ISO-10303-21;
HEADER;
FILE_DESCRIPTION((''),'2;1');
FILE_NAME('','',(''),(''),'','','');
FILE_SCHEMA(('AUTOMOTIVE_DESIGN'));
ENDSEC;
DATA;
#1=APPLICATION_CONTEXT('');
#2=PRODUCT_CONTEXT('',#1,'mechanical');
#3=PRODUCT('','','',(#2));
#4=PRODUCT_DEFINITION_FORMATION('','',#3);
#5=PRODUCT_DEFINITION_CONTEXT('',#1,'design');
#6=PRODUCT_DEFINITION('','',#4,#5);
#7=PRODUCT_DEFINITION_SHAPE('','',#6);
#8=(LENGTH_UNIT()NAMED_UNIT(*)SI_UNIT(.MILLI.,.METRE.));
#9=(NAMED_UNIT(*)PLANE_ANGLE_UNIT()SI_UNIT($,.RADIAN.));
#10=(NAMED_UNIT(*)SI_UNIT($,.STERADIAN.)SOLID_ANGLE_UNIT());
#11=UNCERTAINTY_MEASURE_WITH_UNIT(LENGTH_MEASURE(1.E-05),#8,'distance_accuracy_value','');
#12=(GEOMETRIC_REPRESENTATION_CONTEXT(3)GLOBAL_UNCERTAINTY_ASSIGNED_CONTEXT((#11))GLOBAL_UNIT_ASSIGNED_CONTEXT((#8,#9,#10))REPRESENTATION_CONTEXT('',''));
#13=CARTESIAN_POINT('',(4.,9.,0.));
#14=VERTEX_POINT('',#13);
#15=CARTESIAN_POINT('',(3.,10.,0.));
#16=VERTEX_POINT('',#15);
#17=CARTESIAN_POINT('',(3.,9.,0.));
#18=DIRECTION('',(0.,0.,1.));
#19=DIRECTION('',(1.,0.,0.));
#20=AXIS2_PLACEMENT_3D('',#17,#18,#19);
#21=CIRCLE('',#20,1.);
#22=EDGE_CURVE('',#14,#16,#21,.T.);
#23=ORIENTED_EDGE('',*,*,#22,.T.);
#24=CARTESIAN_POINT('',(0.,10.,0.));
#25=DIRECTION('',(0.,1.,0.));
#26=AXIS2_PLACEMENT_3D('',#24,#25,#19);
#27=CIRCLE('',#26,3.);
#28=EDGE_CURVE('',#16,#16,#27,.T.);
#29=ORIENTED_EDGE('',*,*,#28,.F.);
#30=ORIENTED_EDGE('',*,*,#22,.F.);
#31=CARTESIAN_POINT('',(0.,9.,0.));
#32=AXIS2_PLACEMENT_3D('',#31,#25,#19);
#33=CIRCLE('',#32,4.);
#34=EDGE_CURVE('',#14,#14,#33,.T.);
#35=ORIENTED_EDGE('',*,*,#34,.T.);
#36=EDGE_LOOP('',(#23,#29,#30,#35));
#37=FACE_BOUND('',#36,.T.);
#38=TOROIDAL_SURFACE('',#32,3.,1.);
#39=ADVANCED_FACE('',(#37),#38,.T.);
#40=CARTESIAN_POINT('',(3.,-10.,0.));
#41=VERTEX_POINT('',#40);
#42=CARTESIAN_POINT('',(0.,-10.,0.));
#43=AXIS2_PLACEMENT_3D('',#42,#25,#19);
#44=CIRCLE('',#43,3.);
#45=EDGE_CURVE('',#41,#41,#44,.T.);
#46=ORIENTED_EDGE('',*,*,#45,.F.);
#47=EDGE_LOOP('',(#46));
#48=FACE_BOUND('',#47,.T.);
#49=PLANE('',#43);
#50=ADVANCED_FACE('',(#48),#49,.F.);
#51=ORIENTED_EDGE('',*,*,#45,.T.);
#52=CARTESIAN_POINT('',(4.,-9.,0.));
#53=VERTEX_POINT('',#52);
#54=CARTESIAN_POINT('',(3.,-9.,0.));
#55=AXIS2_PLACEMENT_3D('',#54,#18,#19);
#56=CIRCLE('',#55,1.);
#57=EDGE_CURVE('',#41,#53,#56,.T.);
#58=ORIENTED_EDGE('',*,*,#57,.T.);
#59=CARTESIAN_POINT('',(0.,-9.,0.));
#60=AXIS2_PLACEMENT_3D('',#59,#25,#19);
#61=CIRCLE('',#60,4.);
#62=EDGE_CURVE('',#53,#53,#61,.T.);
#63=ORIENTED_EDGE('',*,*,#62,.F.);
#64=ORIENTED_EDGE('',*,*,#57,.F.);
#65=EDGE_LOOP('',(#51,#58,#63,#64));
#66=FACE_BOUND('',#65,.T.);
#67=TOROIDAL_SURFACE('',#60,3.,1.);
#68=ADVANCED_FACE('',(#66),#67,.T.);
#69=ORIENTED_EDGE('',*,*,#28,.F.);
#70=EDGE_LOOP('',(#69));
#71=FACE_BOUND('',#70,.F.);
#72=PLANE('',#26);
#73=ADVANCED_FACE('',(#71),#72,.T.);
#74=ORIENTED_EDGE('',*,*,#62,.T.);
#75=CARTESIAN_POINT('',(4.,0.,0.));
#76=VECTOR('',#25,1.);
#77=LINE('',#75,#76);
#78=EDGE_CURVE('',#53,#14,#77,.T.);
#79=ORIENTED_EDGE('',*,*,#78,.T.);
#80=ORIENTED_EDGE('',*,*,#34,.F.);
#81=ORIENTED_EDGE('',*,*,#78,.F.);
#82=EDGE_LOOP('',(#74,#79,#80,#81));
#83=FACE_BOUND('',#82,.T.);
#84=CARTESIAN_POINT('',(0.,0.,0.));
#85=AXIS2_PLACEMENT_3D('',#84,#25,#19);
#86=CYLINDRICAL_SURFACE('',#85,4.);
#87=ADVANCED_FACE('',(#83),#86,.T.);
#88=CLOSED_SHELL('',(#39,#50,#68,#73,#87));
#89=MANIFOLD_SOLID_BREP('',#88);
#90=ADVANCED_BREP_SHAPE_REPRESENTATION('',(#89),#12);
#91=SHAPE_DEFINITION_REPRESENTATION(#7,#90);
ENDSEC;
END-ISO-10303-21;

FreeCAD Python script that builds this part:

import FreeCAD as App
import Part
import Sketcher
from FreeCAD import Vector


def edges_at(feature, points):
    """Names of the edges that pass closest to the given points."""
    edges = feature.Shape.Edges
    near = lambda p: min(range(len(edges)), key=lambda i: edges[i].distToShape(Part.Vertex(*p))[0])
    return sorted({f"Edge{near(p) + 1}" for p in points})


def add_polygon(sketch, points):
    """Adds a closed chain of lines whose ends are joined by coincident constraints."""
    first, n = sketch.GeometryCount, len(points)
    for a, b in zip(points, points[1:] + points[:1]):
        sketch.addGeometry(Part.LineSegment(App.Vector(*a, 0), App.Vector(*b, 0)), False)
    for i in range(n):
        sketch.addConstraint(Sketcher.Constraint("Coincident", first + i, 2, first + (i + 1) % n, 1))

doc = App.newDocument("Part")
body = doc.addObject("PartDesign::Body", "Body")

# Sketch on XY plane
sketch1 = doc.addObject("Sketcher::SketchObject", "Sketch")
body.addObject(sketch1)
sketch1.AttachmentSupport = (doc.XY_Plane, [""])
sketch1.MapMode = "FlatFace"
add_polygon(sketch1, [(0, 10), (0, -10), (4, -10), (4, 10)])  # lines 0-3
sketch1.addConstraint(Sketcher.Constraint("Vertical", 0))
sketch1.addConstraint(Sketcher.Constraint("Horizontal", 1))
sketch1.addConstraint(Sketcher.Constraint("Vertical", 2))
sketch1.addConstraint(Sketcher.Constraint("Horizontal", 3))
sketch1.addConstraint(Sketcher.Constraint("Symmetric", 0, 2, 3, 2, -1, 1))
sketch1.addConstraint(Sketcher.Constraint("DistanceX", 1, 1, 1, 2, 4.0))
sketch1.addConstraint(Sketcher.Constraint("DistanceY", 0, 2, 0, 1, 20.0))
revolution = doc.addObject("PartDesign::Revolution", "Revolution")
body.addObject(revolution)
revolution.Profile = sketch1
revolution.ReferenceAxis = (sketch1, ["V_Axis"])
revolution.Angle = 360
doc.recompute()

fillet = doc.addObject("PartDesign::Fillet", "Fillet")
body.addObject(fillet)
fillet.Base = (revolution, edges_at(revolution, [(-4, 10, 0), (-4, -10, 0)]))
fillet.Radius = 1

doc.recompute()
